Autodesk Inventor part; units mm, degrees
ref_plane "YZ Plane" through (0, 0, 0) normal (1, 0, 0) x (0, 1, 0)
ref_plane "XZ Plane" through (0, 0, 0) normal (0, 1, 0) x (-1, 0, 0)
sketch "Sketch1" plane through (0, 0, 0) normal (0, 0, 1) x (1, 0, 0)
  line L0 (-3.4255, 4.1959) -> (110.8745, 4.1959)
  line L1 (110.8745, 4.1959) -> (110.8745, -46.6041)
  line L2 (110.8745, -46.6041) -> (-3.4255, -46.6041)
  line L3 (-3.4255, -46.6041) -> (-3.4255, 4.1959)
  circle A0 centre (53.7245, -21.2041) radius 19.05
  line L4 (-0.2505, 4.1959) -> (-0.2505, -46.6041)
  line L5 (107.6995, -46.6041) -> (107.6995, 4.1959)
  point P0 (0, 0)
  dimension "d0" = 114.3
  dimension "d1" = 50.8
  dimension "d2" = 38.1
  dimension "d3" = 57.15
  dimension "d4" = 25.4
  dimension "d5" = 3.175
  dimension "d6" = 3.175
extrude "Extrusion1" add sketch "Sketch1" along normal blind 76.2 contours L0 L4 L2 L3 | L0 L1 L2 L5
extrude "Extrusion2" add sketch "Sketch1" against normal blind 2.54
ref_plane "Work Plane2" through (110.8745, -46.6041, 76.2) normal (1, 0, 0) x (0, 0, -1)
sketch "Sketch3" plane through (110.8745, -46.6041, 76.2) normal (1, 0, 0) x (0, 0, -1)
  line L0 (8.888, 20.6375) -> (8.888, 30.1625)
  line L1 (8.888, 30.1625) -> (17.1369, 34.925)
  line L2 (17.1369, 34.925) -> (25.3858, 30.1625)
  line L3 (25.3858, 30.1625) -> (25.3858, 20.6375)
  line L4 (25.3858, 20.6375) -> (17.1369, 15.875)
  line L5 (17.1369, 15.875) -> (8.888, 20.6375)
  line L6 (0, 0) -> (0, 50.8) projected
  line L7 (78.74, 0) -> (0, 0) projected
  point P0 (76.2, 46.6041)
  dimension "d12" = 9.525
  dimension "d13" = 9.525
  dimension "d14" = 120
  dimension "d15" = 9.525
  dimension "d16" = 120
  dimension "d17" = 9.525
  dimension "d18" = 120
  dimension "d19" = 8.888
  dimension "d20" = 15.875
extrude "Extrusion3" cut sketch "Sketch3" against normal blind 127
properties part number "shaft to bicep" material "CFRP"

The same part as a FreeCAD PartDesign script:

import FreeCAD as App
import Part
import Sketcher

V = App.Vector
Q = App.Units.Quantity


def add_polygon(sketch, points):
    """Adds a closed chain of lines whose ends are joined by coincident constraints."""
    first, n = sketch.GeometryCount, len(points)
    for a, b in zip(points, points[1:] + points[:1]):
        sketch.addGeometry(Part.LineSegment(App.Vector(*a, 0), App.Vector(*b, 0)), False)
    for i in range(n):
        sketch.addConstraint(Sketcher.Constraint("Coincident", first + i, 2, first + (i + 1) % n, 1))

doc = App.newDocument("Part")
body = doc.addObject("PartDesign::Body", "Body")
body.AllowCompound = True

# Sketch on XY plane
sketch1 = body.newObject("Sketcher::SketchObject", "Sketch")
sketch1.AttachmentSupport = (doc.getObject("XY_Plane"), [""])
sketch1.MapMode = "FlatFace"
add_polygon(sketch1, [(-0.3, 4.2), (-3.4, 4.2), (-3.4, -46.6), (-0.3, -46.6)])  # lines 0-3
add_polygon(sketch1, [(110.9, 4.2), (107.7, 4.2), (107.7, -46.6), (110.9, -46.6)])  # lines 4-7
sketch1.addConstraint(Sketcher.Constraint("Horizontal", 0))
sketch1.addConstraint(Sketcher.Constraint("Vertical", 1))
sketch1.addConstraint(Sketcher.Constraint("Horizontal", 2))
sketch1.addConstraint(Sketcher.Constraint("Vertical", 3))
sketch1.addConstraint(Sketcher.Constraint("Horizontal", 4))
sketch1.addConstraint(Sketcher.Constraint("Vertical", 5))
sketch1.addConstraint(Sketcher.Constraint("Horizontal", 6))
sketch1.addConstraint(Sketcher.Constraint("Vertical", 7))
sketch1.addConstraint(Sketcher.Constraint("Horizontal", 3, 2, 4, 2))
sketch1.addConstraint(Sketcher.Constraint("Horizontal", 2, 2, 5, 2))
sketch1.addConstraint(Sketcher.Constraint("Equal", 2, 4))
sketch1.addConstraint(Sketcher.Constraint("DistanceY", 1, 2, 1, 1, Q("2 in")))
sketch1.addConstraint(Sketcher.Constraint("DistanceX", 1, 2, 6, 2, Q("4.5 in")))
sketch1.addConstraint(Sketcher.Constraint("DistanceX", 0, 2, 0, 1, Q("0.125 in")))
sketch1.addConstraint(Sketcher.Constraint("DistanceY", -1, 1, 0, 2, Q("0.1652 in")))
sketch1.addConstraint(Sketcher.Constraint("DistanceX", 0, 2, -1, 1, 3.4255))
pad1 = body.newObject("PartDesign::Pad", "Pad")
pad1.Profile = sketch1
pad1.Length = Q("3 in")

# Sketch on XY plane
sketch2 = body.newObject("Sketcher::SketchObject", "Sketch001")
sketch2.AttachmentSupport = (doc.getObject("XY_Plane"), [""])
sketch2.MapMode = "FlatFace"
add_polygon(sketch2, [(-3, 4), (-3, -47), (111, -47), (111, 4)])  # lines 0-3
sketch2.addGeometry(Part.Circle(V(54, -21, 0), V(0, 0, 1), 19), False)  # 4
sketch2.addConstraint(Sketcher.Constraint("Vertical", 0))
sketch2.addConstraint(Sketcher.Constraint("Horizontal", 1))
sketch2.addConstraint(Sketcher.Constraint("Vertical", 2))
sketch2.addConstraint(Sketcher.Constraint("Horizontal", 3))
sketch2.addConstraint(Sketcher.Constraint("Diameter", 4, Q("1.5 in")))
sketch2.addConstraint(Sketcher.Constraint("DistanceY", 0, 2, 0, 1, Q("2 in")))
sketch2.addConstraint(Sketcher.Constraint("DistanceX", 1, 1, 1, 2, Q("4.5 in")))
sketch2.addConstraint(Sketcher.Constraint("DistanceY", 0, 2, 4, 3, Q("1 in")))
sketch2.addConstraint(Sketcher.Constraint("DistanceX", 0, 2, 4, 3, Q("2.25 in")))
sketch2.addConstraint(Sketcher.Constraint("DistanceY", 4, 3, -1, 1, Q("0.8348 in")))
sketch2.addConstraint(Sketcher.Constraint("DistanceX", -1, 1, 4, 3, 53.7245))
pad2 = body.newObject("PartDesign::Pad", "Pad001")
pad2.Profile = sketch2
pad2.Length = Q("0.1 in")
pad2.Reversed = True

# Sketch on YZ plane
sketch3 = body.newObject("Sketcher::SketchObject", "Sketch002")
sketch3.AttachmentSupport = (doc.getObject("YZ_Plane"), [""])
sketch3.MapMode = "FlatFace"
sketch3.AttachmentOffset = App.Placement(V(0, 0, 110.8745), App.Rotation())
add_polygon(sketch3, [(-16, 67), (-26, 67), (-31, 59), (-26, 51), (-16, 51), (-12, 59)])  # lines 0-5
sketch3.addConstraint(Sketcher.Constraint("Horizontal", 0))
sketch3.addConstraint(Sketcher.Constraint("Horizontal", 3))
sketch3.addConstraint(Sketcher.Constraint("Parallel", 1, 4))
sketch3.addConstraint(Sketcher.Constraint("Parallel", 2, 5))
sketch3.addConstraint(Sketcher.Constraint("Horizontal", 1, 2, 4, 2))
sketch3.addConstraint(Sketcher.Constraint("Vertical", 0, 2, 2, 2))
sketch3.addConstraint(Sketcher.Constraint("Vertical", 3, 2, 5, 2))
sketch3.addConstraint(Sketcher.Constraint("Angle", 1, Q("-120 deg")))
sketch3.addConstraint(Sketcher.Constraint("DistanceX", 0, 2, 0, 1, Q("0.375 in")))
sketch3.addConstraint(Sketcher.Constraint("Distance", 1, Q("0.375 in")))
sketch3.addConstraint(Sketcher.Constraint("DistanceX", 0, 2, -1, 1, Q("1.0223 in")))
sketch3.addConstraint(Sketcher.Constraint("DistanceY", -1, 1, 0, 2, 67.312))
pocket1 = body.newObject("PartDesign::Pocket", "Pocket")
pocket1.Profile = sketch3
pocket1.Length = Q("5 in")

doc.recompute()
